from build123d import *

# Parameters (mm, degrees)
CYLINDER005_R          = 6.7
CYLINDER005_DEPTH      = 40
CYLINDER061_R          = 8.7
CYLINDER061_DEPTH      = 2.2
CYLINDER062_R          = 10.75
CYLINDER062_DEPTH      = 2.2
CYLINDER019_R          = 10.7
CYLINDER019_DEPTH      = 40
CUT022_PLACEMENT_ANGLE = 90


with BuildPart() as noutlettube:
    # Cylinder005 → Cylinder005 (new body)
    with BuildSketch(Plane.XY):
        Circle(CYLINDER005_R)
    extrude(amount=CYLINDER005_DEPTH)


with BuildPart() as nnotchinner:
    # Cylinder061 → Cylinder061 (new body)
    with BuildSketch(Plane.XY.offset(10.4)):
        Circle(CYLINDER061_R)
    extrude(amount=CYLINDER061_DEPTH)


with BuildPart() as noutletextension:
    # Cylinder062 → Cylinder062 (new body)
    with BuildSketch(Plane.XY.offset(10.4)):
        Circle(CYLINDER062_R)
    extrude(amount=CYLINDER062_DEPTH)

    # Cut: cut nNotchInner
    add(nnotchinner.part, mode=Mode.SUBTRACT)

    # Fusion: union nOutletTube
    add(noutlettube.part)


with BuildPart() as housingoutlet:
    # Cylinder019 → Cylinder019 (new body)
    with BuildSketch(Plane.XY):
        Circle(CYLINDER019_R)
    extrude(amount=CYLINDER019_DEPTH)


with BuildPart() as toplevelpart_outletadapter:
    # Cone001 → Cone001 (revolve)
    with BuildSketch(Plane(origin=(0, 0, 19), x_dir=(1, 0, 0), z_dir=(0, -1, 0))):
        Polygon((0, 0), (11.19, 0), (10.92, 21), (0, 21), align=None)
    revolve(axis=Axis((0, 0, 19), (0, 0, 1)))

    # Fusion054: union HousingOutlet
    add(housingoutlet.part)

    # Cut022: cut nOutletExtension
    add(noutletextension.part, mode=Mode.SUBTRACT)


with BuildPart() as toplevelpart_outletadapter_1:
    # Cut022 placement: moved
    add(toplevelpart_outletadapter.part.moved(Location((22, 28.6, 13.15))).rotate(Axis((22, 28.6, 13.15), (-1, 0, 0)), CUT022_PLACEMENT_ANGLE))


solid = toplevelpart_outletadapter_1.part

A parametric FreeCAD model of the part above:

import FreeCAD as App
import Part
import Sketcher

V = App.Vector
Q = App.Units.Quantity


def add_polygon(sketch, points):
    """Adds a closed chain of lines whose ends are joined by coincident constraints."""
    first, n = sketch.GeometryCount, len(points)
    for a, b in zip(points, points[1:] + points[:1]):
        sketch.addGeometry(Part.LineSegment(App.Vector(*a, 0), App.Vector(*b, 0)), False)
    for i in range(n):
        sketch.addConstraint(Sketcher.Constraint("Coincident", first + i, 2, first + (i + 1) % n, 1))

doc = App.newDocument("Part")
body = doc.addObject("PartDesign::Body", "Body")

# Sketch on XY plane
sketch1 = body.newObject("Sketcher::SketchObject", "Sketch")
sketch1.AttachmentSupport = (doc.getObject("XY_Plane"), [""])
sketch1.MapMode = "FlatFace"
sketch1.addGeometry(Part.Circle(V(0, 0, 0), V(0, 0, 1), 7), False)
sketch1.addConstraint([
    Sketcher.Constraint("Coincident", 0, 3, -1, 1),
    Sketcher.Constraint("Diameter", 0, Q("13.4 mm")),
])
pad1 = body.newObject("PartDesign::Pad", "Pad")
pad1.Profile = sketch1
pad1.Length = 40
body2 = doc.addObject("PartDesign::Body", "Body001")

# Sketch on XY plane
sketch2 = body2.newObject("Sketcher::SketchObject", "Sketch001")
sketch2.AttachmentSupport = (doc.getObject("XY_Plane001"), [""])
sketch2.MapMode = "FlatFace"
sketch2.AttachmentOffset = App.Placement(V(0, 0, 10.4), App.Rotation())
sketch2.addGeometry(Part.Circle(V(0, 0, 0), V(0, 0, 1), 9), False)
sketch2.addConstraint([
    Sketcher.Constraint("Coincident", 0, 3, -1, 1),
    Sketcher.Constraint("Diameter", 0, Q("17.4 mm")),
])
pad2 = body2.newObject("PartDesign::Pad", "Pad001")
pad2.Profile = sketch2
pad2.Length = 2.2
body3 = doc.addObject("PartDesign::Body", "Body002")
body3.AllowCompound = True

# Sketch on XY plane
sketch3 = body3.newObject("Sketcher::SketchObject", "Sketch002")
sketch3.AttachmentSupport = (doc.getObject("XY_Plane002"), [""])
sketch3.MapMode = "FlatFace"
sketch3.AttachmentOffset = App.Placement(V(0, 0, 10.4), App.Rotation())
sketch3.addGeometry(Part.Circle(V(0, 0, 0), V(0, 0, 1), 11), False)
sketch3.addConstraint([
    Sketcher.Constraint("Coincident", 0, 3, -1, 1),
    Sketcher.Constraint("Diameter", 0, Q("21.5 mm")),
])
pad3 = body3.newObject("PartDesign::Pad", "Pad002")
pad3.Profile = sketch3
pad3.Length = 2.2
doc.recompute()

boolean = body3.newObject("PartDesign::Boolean", "Boolean")
boolean.Type = "Cut"
boolean.addObjects([body2])
doc.recompute()

boolean2 = body3.newObject("PartDesign::Boolean", "Boolean001")
boolean2.Type = "Fuse"
boolean2.addObjects([body])
body4 = doc.addObject("PartDesign::Body", "Body003")

# Sketch on XY plane
sketch4 = body4.newObject("Sketcher::SketchObject", "Sketch003")
sketch4.AttachmentSupport = (doc.getObject("XY_Plane003"), [""])
sketch4.MapMode = "FlatFace"
sketch4.addGeometry(Part.Circle(V(0, 0, 0), V(0, 0, 1), 11), False)
sketch4.addConstraint([
    Sketcher.Constraint("Coincident", 0, 3, -1, 1),
    Sketcher.Constraint("Diameter", 0, Q("21.4 mm")),
])
pad4 = body4.newObject("PartDesign::Pad", "Pad003")
pad4.Profile = sketch4
pad4.Length = 40
body5 = doc.addObject("PartDesign::Body", "Body004")

# Sketch on XZ plane
sketch5 = body5.newObject("Sketcher::SketchObject", "Sketch004")
sketch5.AttachmentSupport = (doc.getObject("XZ_Plane004"), [""])
sketch5.MapMode = "FlatFace"
add_polygon(sketch5, [(0, 19), (11, 19), (11, 40), (0, 40)])  # lines 0-3
sketch5.addConstraint([
    Sketcher.Constraint("Horizontal", 0),
    Sketcher.Constraint("Horizontal", 2),
    Sketcher.Constraint("Vertical", 3),
    Sketcher.Constraint("PointOnObject", 2, 2, -2),
    Sketcher.Constraint("DistanceY", 3, 2, 3, 1, Q("21 mm")),
    Sketcher.Constraint("DistanceY", -1, 1, 0, 2, Q("19 mm")),
    Sketcher.Constraint("DistanceX", 0, 1, 0, 2, Q("11.19 mm")),
    Sketcher.Constraint("DistanceX", 2, 2, 2, 1, Q("10.92 mm")),
])
revolution = body5.newObject("PartDesign::Revolution", "Revolution")
revolution.Profile = sketch5
revolution.ReferenceAxis = (sketch5, ["V_Axis"])
revolution.Angle = 360
doc.recompute()

boolean3 = body5.newObject("PartDesign::Boolean", "Boolean002")
boolean3.Type = "Fuse"
boolean3.addObjects([body4])
doc.recompute()

boolean4 = body5.newObject("PartDesign::Boolean", "Boolean003")
boolean4.Type = "Cut"
boolean4.addObjects([body3])
body6 = doc.addObject("PartDesign::Body", "Body005")
doc.recompute()

body5.Placement = App.Placement(V(22, 28.6, 13.15), App.Rotation(V(-1, 0, 0), 90))
boolean5 = body6.newObject("PartDesign::Boolean", "Boolean004")
boolean5.Type = "Fuse"
boolean5.addObjects([body5])

doc.recompute()
